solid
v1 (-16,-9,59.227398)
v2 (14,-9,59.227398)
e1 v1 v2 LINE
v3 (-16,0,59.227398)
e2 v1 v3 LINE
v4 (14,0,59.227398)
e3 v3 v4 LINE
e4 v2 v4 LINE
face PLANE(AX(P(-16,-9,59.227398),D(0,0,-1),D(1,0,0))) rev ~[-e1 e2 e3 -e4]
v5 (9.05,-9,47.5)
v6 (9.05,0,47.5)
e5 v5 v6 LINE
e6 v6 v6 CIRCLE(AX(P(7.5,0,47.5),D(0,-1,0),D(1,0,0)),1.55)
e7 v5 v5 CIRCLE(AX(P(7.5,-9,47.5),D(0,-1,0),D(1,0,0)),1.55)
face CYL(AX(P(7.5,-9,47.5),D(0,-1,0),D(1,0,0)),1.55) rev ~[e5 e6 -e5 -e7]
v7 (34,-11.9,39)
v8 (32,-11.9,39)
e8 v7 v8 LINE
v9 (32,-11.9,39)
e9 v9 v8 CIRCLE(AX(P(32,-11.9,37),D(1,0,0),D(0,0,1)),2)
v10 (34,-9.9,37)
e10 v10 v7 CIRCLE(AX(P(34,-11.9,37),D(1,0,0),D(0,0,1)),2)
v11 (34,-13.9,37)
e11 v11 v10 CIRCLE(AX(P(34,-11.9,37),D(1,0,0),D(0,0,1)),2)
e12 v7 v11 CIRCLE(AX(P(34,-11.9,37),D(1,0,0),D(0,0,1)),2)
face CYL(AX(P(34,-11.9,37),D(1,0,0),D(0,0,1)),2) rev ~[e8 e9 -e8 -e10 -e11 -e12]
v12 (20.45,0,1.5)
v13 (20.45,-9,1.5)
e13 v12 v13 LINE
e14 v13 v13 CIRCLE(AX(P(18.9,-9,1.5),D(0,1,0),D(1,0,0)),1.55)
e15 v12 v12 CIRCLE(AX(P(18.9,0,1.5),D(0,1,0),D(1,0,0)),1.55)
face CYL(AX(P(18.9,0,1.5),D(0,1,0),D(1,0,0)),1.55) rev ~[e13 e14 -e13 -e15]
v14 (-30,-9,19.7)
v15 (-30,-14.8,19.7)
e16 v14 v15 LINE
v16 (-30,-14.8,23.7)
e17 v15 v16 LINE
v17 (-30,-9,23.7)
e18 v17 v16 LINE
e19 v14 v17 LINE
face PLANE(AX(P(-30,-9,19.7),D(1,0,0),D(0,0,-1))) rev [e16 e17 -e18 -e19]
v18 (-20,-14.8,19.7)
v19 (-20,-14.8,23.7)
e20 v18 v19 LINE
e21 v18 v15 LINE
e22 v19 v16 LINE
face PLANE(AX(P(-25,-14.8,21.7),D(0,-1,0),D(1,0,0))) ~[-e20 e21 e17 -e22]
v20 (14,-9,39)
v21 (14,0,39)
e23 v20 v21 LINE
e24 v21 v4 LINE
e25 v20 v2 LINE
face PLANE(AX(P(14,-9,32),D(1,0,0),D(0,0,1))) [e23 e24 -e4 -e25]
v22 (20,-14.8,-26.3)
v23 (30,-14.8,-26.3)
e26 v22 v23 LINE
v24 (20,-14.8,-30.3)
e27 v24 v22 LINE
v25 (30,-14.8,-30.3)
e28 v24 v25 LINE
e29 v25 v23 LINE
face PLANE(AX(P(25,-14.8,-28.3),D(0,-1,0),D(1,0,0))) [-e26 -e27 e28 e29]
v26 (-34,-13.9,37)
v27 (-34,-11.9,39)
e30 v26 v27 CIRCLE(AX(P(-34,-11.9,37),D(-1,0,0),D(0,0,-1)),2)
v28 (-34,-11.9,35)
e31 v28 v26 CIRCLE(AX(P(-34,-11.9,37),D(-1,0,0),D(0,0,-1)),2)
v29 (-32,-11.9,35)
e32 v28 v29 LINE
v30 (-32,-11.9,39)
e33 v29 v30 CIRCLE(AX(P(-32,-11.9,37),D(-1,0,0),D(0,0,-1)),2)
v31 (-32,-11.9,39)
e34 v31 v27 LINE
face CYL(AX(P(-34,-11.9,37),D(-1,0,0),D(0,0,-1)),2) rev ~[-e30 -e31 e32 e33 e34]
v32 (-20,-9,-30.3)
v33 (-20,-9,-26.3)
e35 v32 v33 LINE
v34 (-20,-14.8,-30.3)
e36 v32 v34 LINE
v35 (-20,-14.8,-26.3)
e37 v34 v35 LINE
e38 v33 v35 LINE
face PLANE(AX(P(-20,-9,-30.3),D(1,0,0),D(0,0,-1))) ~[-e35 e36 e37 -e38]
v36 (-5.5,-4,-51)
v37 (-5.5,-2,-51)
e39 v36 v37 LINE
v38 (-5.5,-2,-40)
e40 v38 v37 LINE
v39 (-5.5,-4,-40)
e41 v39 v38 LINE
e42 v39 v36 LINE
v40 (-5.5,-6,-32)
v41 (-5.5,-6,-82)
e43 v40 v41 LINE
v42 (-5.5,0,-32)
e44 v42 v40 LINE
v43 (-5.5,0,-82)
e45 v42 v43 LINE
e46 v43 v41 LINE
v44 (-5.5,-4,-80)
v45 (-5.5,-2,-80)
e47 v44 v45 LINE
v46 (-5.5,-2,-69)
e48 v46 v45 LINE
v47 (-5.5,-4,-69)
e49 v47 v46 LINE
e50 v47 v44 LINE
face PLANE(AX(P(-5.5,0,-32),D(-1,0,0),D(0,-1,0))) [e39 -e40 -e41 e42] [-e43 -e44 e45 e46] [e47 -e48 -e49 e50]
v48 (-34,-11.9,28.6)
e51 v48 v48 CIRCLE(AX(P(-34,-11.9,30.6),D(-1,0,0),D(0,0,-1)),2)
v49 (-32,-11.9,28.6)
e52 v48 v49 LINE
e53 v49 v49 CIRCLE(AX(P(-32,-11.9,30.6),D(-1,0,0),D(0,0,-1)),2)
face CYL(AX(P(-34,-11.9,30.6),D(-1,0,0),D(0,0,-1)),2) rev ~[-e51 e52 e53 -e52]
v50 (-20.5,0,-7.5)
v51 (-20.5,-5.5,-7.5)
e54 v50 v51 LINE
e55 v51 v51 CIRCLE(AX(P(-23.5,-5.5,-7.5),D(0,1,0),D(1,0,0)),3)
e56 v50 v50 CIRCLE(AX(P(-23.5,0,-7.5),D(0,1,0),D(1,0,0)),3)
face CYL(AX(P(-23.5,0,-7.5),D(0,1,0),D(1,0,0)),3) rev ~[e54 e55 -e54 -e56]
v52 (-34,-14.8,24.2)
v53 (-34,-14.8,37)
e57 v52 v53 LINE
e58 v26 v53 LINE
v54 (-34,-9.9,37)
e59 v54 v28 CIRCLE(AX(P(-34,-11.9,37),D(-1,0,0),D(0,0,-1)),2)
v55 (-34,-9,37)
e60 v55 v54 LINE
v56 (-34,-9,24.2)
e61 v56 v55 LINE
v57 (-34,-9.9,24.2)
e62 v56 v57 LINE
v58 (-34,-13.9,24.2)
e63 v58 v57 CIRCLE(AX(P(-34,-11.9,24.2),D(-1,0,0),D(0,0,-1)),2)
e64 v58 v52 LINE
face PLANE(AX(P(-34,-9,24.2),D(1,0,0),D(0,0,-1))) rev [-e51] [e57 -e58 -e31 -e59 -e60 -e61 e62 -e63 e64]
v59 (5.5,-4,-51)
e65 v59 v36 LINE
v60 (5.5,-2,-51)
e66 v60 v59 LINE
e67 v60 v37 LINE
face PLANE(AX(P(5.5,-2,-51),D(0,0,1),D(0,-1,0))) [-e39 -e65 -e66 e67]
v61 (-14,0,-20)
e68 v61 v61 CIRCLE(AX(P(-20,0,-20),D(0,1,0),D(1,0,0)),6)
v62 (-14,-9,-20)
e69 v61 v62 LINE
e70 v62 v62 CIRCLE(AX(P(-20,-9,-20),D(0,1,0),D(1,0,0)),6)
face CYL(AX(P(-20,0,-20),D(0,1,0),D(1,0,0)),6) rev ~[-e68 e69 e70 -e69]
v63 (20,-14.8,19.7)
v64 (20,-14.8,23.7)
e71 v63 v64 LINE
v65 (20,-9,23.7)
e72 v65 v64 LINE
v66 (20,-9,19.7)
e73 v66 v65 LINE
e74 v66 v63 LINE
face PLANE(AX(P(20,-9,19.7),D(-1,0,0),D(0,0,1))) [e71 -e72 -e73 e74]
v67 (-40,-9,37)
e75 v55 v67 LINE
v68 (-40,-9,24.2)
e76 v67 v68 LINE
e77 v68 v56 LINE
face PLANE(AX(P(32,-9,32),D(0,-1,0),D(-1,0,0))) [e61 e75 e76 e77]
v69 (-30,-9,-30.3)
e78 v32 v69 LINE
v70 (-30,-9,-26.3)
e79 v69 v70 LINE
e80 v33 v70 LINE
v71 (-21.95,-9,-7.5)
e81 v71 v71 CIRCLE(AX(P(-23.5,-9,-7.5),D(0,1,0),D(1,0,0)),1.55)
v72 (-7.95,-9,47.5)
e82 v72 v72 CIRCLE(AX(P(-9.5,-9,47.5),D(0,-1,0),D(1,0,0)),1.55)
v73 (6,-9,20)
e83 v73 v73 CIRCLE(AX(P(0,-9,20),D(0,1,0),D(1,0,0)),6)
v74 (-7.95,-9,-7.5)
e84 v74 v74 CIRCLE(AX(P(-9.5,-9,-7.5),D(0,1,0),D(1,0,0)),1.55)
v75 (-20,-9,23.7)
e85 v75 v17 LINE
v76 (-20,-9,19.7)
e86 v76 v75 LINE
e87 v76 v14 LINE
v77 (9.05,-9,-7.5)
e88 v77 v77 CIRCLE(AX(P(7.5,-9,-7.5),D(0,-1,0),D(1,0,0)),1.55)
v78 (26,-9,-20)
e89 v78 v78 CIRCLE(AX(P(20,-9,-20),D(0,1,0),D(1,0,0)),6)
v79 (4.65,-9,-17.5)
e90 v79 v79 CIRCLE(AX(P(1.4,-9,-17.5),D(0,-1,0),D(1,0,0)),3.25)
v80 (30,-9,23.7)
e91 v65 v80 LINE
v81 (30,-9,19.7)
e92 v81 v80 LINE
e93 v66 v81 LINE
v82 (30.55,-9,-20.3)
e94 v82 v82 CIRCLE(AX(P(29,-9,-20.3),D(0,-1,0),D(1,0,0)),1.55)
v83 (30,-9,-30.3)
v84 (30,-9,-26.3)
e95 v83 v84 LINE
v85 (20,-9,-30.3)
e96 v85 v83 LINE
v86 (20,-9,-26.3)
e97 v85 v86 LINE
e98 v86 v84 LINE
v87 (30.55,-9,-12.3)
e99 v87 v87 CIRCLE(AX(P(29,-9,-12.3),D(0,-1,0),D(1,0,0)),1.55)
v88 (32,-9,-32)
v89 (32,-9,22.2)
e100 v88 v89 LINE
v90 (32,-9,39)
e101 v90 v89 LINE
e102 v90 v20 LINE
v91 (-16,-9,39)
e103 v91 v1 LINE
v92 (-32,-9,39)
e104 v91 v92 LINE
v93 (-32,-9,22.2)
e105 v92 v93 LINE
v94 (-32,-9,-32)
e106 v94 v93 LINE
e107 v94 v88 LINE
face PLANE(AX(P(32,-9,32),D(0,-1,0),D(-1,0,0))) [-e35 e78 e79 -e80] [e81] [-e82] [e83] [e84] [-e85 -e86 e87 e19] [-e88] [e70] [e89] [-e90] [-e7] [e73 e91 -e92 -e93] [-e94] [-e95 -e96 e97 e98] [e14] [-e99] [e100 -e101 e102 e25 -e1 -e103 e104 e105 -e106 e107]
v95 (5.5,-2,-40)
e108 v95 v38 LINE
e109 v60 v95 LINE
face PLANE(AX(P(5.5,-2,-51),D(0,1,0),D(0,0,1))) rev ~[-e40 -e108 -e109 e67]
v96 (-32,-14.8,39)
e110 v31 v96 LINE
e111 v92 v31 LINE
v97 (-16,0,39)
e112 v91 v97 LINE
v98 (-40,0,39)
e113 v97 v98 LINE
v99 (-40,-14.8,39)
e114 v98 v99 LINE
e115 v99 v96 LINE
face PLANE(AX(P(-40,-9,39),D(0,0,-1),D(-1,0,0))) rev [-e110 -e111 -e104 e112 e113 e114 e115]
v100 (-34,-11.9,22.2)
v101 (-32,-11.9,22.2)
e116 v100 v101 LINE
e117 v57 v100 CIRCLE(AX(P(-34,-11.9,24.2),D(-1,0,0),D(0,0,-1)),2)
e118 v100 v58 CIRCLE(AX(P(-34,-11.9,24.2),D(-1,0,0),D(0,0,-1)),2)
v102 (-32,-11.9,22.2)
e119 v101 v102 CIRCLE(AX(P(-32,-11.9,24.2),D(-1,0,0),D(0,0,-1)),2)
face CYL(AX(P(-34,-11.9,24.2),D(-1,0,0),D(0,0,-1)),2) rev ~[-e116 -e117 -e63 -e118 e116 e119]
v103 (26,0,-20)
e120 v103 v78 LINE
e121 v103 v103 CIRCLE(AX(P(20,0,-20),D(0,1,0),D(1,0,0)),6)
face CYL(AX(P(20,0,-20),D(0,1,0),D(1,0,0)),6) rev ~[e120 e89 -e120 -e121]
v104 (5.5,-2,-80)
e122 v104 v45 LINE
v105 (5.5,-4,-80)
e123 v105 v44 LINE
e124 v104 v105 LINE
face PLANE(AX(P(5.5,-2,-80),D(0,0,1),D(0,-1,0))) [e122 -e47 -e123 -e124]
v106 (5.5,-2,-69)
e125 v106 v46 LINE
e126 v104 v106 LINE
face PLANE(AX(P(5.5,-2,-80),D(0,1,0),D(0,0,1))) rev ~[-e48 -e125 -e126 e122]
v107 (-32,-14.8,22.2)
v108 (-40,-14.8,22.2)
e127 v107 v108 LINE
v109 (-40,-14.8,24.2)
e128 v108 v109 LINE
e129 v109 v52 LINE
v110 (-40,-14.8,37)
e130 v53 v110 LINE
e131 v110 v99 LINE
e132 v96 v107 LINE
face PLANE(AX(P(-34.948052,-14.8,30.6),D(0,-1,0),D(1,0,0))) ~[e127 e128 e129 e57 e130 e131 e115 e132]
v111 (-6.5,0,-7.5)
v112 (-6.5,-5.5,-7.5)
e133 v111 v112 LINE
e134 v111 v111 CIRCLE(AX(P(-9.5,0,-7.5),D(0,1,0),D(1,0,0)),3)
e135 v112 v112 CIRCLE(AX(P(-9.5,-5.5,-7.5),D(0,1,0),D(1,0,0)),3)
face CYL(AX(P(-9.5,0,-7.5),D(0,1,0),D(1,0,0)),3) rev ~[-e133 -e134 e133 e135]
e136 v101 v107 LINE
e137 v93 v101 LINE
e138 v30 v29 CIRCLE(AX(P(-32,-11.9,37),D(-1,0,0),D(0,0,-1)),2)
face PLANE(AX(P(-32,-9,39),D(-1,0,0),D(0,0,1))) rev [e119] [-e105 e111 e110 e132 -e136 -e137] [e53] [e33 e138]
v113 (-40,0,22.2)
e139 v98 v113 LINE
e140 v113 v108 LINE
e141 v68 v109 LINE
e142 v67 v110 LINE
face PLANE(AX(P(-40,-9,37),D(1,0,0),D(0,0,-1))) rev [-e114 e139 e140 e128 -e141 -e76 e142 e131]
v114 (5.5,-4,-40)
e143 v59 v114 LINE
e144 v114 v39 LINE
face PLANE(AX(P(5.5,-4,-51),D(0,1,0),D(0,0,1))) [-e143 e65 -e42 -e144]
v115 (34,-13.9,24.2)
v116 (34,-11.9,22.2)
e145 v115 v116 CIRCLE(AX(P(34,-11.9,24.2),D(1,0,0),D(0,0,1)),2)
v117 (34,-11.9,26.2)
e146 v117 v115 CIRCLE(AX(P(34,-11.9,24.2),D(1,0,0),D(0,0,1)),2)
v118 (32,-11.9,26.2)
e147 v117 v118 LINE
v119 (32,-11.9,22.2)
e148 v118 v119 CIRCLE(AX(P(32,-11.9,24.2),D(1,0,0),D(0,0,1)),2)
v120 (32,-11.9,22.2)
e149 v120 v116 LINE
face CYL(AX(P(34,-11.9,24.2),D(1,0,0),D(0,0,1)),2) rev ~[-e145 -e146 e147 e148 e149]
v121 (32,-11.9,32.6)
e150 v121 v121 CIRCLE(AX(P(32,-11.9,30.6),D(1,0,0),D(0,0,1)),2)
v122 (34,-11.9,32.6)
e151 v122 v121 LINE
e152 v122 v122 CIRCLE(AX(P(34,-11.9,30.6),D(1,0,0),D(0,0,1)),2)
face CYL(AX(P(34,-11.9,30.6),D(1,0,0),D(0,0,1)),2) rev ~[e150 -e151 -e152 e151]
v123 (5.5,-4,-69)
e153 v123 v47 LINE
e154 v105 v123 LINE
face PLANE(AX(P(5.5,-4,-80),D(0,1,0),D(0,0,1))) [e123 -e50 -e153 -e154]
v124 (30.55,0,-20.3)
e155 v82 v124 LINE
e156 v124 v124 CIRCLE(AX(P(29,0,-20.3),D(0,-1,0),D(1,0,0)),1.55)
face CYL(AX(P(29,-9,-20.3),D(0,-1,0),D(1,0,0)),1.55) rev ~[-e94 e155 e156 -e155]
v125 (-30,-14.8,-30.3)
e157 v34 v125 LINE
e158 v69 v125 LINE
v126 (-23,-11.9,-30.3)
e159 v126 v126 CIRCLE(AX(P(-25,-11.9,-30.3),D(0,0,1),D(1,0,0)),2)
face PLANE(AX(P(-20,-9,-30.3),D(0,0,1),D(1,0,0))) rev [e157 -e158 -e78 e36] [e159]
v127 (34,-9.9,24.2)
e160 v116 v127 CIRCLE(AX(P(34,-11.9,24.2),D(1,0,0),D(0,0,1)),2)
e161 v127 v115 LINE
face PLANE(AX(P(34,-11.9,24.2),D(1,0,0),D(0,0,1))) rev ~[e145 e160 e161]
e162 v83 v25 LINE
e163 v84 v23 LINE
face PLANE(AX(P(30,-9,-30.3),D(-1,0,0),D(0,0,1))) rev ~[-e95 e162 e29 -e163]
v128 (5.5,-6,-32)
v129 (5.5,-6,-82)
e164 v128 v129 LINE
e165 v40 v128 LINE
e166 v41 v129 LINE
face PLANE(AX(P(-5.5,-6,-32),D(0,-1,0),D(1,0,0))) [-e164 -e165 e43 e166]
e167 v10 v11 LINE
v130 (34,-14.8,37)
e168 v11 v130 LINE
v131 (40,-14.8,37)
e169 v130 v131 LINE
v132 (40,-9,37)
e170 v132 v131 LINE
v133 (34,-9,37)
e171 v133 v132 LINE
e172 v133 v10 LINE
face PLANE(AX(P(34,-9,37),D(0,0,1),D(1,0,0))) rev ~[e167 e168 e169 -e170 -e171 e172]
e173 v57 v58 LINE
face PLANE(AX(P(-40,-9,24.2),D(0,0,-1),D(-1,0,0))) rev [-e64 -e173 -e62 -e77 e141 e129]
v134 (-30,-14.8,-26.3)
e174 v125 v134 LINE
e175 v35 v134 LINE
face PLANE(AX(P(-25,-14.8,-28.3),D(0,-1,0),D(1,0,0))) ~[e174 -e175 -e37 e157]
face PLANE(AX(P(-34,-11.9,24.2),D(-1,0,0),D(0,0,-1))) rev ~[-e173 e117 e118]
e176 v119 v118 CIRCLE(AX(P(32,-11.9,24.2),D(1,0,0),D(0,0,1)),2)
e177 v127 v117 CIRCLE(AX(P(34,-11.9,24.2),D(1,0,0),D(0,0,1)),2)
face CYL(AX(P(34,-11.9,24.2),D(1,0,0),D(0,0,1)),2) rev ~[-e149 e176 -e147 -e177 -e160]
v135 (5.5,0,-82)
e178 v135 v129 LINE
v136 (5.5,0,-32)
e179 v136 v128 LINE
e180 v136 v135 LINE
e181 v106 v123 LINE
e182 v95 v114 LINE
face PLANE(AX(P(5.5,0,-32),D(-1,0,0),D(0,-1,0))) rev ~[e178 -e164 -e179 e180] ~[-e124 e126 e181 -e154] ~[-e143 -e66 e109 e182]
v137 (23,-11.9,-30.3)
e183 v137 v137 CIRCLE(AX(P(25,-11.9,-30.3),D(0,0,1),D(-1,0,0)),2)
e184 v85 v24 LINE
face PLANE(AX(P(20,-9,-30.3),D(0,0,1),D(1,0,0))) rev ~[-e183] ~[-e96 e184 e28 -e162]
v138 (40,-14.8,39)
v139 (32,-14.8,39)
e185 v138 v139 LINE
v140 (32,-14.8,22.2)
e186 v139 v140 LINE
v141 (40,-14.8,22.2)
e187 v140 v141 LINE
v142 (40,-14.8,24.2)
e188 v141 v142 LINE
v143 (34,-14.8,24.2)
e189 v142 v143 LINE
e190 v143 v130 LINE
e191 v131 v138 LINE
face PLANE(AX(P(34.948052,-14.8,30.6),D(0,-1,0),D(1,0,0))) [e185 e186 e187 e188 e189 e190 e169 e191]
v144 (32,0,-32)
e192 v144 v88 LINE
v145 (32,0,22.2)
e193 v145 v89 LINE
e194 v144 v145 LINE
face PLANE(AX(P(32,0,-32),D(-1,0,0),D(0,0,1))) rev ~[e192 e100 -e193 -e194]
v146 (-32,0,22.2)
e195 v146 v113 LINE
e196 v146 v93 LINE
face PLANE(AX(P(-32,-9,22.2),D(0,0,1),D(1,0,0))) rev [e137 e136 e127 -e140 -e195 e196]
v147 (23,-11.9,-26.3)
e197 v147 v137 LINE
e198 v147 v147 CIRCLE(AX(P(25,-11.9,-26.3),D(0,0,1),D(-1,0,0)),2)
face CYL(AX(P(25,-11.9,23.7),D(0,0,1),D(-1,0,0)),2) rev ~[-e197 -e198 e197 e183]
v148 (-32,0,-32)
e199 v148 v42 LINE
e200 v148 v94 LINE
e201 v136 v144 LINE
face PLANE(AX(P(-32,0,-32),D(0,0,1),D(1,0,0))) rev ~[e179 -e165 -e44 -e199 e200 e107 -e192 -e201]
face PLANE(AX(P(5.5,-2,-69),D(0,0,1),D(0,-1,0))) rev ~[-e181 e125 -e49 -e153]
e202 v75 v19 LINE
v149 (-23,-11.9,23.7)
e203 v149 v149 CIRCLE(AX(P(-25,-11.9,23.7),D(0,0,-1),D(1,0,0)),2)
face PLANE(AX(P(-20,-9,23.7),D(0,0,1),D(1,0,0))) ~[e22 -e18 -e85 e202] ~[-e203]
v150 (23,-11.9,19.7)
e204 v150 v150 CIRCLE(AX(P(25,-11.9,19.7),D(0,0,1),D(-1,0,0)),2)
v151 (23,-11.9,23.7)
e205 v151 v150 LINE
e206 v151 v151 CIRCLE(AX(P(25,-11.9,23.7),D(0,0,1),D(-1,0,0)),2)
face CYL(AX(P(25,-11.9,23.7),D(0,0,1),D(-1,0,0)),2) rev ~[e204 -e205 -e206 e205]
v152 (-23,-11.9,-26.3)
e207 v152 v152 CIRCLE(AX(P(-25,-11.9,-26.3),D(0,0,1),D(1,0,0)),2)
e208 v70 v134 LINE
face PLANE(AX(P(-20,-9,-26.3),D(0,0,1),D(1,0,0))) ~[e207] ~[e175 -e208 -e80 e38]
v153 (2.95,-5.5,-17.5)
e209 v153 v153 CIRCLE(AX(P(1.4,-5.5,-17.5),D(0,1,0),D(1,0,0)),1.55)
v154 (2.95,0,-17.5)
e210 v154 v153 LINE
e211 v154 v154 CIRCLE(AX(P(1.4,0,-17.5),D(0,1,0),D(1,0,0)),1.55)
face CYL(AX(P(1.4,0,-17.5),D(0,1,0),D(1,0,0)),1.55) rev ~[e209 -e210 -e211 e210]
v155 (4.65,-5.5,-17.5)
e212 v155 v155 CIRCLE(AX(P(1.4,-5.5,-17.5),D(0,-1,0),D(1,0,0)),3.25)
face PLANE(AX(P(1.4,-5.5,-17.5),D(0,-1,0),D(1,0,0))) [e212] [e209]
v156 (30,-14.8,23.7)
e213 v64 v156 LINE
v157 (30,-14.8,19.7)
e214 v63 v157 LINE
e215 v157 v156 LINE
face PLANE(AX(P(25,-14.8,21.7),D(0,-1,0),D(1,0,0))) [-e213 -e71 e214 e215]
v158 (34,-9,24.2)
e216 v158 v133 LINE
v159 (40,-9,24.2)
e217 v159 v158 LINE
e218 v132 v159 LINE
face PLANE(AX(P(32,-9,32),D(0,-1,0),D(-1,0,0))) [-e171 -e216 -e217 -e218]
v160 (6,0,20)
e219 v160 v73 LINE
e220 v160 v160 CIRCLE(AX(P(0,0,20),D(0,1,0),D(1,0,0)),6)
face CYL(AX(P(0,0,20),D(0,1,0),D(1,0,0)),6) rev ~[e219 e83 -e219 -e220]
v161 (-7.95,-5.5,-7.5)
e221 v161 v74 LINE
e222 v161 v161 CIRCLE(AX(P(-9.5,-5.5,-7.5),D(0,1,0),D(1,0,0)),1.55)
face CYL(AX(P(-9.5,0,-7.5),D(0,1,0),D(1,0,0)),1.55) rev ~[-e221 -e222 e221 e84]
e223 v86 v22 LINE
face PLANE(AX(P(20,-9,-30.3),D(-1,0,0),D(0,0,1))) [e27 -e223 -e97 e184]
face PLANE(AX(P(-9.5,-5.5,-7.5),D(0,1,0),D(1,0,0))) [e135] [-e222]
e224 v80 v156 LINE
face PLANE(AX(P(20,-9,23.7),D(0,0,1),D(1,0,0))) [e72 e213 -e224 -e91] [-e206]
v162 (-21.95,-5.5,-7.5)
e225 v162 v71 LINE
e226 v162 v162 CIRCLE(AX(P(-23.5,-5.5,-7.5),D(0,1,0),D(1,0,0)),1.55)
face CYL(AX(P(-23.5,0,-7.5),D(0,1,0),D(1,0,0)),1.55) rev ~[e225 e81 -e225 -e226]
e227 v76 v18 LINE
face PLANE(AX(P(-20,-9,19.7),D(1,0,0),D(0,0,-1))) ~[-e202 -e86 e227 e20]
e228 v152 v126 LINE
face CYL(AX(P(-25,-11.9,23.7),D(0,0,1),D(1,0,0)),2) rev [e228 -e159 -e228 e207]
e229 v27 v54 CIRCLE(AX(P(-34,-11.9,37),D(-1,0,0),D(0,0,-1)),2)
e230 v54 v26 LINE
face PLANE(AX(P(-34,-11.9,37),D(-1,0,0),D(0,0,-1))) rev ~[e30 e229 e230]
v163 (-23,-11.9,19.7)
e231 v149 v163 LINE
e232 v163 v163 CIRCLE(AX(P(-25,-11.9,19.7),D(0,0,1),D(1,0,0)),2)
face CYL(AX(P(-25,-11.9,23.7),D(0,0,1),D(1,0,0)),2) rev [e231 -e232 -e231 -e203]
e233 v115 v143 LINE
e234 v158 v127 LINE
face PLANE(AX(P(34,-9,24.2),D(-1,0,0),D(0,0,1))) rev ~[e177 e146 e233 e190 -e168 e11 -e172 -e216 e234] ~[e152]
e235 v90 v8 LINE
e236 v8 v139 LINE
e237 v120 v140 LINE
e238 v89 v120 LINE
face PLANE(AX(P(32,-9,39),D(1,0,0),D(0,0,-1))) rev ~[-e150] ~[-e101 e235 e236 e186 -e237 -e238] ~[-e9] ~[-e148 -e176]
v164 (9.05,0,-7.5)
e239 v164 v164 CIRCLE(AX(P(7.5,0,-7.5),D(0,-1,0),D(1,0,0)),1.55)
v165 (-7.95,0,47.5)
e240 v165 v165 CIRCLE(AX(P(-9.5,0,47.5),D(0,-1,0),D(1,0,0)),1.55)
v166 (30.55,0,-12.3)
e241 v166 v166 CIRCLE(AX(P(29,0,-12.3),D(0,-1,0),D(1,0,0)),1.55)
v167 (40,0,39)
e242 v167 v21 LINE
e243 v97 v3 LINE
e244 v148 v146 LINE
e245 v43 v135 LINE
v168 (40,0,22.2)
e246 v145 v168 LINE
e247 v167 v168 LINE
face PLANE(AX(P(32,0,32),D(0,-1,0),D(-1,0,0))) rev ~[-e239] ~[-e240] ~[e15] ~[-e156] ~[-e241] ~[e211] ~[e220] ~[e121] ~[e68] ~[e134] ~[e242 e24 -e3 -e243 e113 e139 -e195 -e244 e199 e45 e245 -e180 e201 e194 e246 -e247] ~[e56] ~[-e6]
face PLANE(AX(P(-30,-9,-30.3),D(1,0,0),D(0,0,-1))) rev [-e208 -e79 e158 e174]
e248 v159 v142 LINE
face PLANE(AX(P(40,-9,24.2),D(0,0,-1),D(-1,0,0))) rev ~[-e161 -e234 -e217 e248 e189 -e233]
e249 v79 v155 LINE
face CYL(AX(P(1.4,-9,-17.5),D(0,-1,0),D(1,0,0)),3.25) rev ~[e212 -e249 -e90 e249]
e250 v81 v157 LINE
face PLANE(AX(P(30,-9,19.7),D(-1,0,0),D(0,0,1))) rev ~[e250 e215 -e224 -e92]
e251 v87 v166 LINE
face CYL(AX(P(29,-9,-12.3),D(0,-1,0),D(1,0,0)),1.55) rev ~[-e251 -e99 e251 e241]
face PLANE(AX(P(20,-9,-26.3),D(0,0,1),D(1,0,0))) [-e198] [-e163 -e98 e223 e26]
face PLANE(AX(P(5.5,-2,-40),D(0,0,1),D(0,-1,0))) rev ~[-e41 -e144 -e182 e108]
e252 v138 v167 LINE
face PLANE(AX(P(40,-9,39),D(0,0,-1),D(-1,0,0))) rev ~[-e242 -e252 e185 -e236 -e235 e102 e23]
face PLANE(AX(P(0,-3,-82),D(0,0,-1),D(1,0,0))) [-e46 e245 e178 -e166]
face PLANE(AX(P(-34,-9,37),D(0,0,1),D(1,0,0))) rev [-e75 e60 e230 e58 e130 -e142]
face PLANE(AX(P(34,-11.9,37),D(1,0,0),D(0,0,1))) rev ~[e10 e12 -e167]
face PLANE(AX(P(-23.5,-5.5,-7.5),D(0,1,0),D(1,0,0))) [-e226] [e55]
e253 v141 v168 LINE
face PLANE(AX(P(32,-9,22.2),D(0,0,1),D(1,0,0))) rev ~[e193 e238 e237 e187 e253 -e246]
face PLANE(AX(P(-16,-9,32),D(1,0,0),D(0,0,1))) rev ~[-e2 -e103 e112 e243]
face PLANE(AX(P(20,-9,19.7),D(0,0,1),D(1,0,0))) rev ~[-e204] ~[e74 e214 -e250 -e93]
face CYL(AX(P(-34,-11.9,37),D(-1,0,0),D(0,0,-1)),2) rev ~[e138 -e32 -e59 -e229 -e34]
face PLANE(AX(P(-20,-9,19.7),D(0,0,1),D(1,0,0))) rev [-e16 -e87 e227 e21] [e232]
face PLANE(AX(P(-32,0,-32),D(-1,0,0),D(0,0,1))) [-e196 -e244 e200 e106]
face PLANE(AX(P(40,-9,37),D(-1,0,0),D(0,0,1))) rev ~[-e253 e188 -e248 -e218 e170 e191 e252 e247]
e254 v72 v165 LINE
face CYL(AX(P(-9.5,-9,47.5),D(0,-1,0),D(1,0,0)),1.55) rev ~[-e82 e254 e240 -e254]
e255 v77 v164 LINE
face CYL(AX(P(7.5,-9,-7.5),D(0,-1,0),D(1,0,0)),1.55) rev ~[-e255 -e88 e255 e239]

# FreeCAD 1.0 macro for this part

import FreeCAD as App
import Part
import Sketcher
Q = App.Units.Quantity


def add_polygon(sketch, points):
    """Adds a closed chain of lines whose ends are joined by coincident constraints."""
    first, n = sketch.GeometryCount, len(points)
    for a, b in zip(points, points[1:] + points[:1]):
        sketch.addGeometry(Part.LineSegment(App.Vector(*a, 0), App.Vector(*b, 0)), False)
    for i in range(n):
        sketch.addConstraint(Sketcher.Constraint("Coincident", first + i, 2, first + (i + 1) % n, 1))

doc = App.newDocument("Part")
params = doc.addObject("Spreadsheet::Sheet", "Params")
for row, (alias, value) in enumerate([
    ("sketch1_width", "64 mm"),
    ("pad1_length", "9 mm"),
    ("sketch2_diameter", "3.1 mm"),
    ("pocket1_length", "9 mm"),
    ("sketch3_diameter", "3.1 mm"),
    ("pocket2_length", "9 mm"),
    ("sketch4_diameter", "6 mm"),
    ("pocket3_length", "5.5 mm"),
    ("sketch5_diameter", "12 mm"),
    ("pocket4_length", "9 mm"),
    ("sketch6_diameter", "3.1 mm"),
    ("pocket5_length", "9 mm"),
    ("sketch7_width", "30 mm"),
    ("pad2_length", "9 mm"),
    ("sketch8_diameter", "3.1 mm"),
    ("pocket6_length", "9 mm"),
    ("sketch9_width", "9 mm"),
    ("sketch9_height", "16.8 mm"),
    ("pad3_length", "8 mm"),
    ("sketch10_width", "16 mm"),
    ("sketch10_height", "9 mm"),
    ("pad4_length", "7 mm"),
    ("sketch11_width", "18 mm"),
    ("sketch11_height", "9 mm"),
    ("pad5_length", "7 mm"),
    ("sketch12_width", "8 mm"),
    ("sketch12_width2", "6 mm"),
    ("sketch12_height", "2 mm"),
    ("sketch12_height2", "16.8 mm"),
    ("pad6_length", "5.8 mm"),
    ("sketch13_diameter", "4 mm"),
    ("pocket7_length", "5 mm"),
    ("linearpattern_pitch", "6.4 mm"),
    ("sketch14_diameter", "4 mm"),
    ("pocket8_length", "5 mm"),
    ("linearpattern2_pitch", "6.4 mm"),
    ("sketch15_width", "10 mm"),
    ("sketch15_height", "4 mm"),
    ("pad7_length", "5.8 mm"),
    ("sketch16_diameter", "4 mm"),
    ("pocket9_length", "100 mm"),
    ("sketch17_width", "11 mm"),
    ("sketch17_height", "6 mm"),
    ("pad8_length", "50 mm"),
    ("sketch18_width", "2 mm"),
    ("sketch18_height", "11 mm"),
    ("pocket10_length", "12 mm"),
    ("sketch19_diameter", "3.1 mm"),
    ("pocket11_length", "10 mm"),
    ("sketch20_diameter", "6.5 mm"),
    ("pocket12_length", "3.5 mm"),
], start=1):
    params.set(f"A{row}", alias)
    params.set(f"B{row}", "=" + value)
    params.setAlias(f"B{row}", alias)

body = doc.addObject("PartDesign::Body", "Body")

sketch1 = doc.addObject("Sketcher::SketchObject", "Sketch")
body.addObject(sketch1)
sketch1.AttachmentSupport = (doc.XZ_Plane, [""])
sketch1.MapMode = "FlatFace"
add_polygon(sketch1, [(-32, 32), (-32, -32), (32, -32), (32, 32)])
sketch1.addConstraint(Sketcher.Constraint("Vertical", 0))
sketch1.addConstraint(Sketcher.Constraint("Horizontal", 1))
sketch1.addConstraint(Sketcher.Constraint("Vertical", 2))
sketch1.addConstraint(Sketcher.Constraint("Horizontal", 3))
sketch1.addConstraint(Sketcher.Constraint("Symmetric", 0, 2, 2, 2, -1, 1))
sketch1.addConstraint(Sketcher.Constraint("Equal", 3, 0))
sketch1.addConstraint(Sketcher.Constraint("DistanceX", 1, 1, 1, 2, Q("64 mm")))
sketch1.setExpression("Constraints[10]", "Params.sketch1_width")
pad1 = doc.addObject("PartDesign::Pad", "Pad")
body.addObject(pad1)
pad1.Profile = sketch1
pad1.setExpression("Length", "Params.pad1_length")

sketch2 = doc.addObject("Sketcher::SketchObject", "Sketch001")
body.addObject(sketch2)
sketch2.AttachmentSupport = (doc.XZ_Plane, [""])
sketch2.MapMode = "FlatFace"
sketch2.addGeometry(Part.Circle(App.Vector(-9.5, -7.5, 0), App.Vector(0, 0, 1), 1.55), False)
sketch2.addGeometry(Part.Circle(App.Vector(-23.5, -7.5, 0), App.Vector(0, 0, 1), 1.55), False)
sketch2.addConstraint(Sketcher.Constraint("Equal", 0, 1))
sketch2.addConstraint(Sketcher.Constraint("Horizontal", 0, 3, 1, 3))
sketch2.addConstraint(Sketcher.Constraint("Diameter", 0, Q("3.1 mm")))
sketch2.addConstraint(Sketcher.Constraint("DistanceX", 1, 3, 0, 3, Q("14 mm")))
sketch2.addConstraint(Sketcher.Constraint("DistanceX", 0, 3, -1, 1, Q("9.5 mm")))
sketch2.addConstraint(Sketcher.Constraint("DistanceY", 0, 3, -1, 1, Q("7.5 mm")))
sketch2.setExpression("Constraints[2]", "Params.sketch2_diameter")
pocket1 = doc.addObject("PartDesign::Pocket", "Pocket")
body.addObject(pocket1)
pocket1.Profile = sketch2
pocket1.setExpression("Length", "Params.pocket1_length")
pocket1.Reversed = True

sketch3 = doc.addObject("Sketcher::SketchObject", "Sketch002")
body.addObject(sketch3)
sketch3.AttachmentSupport = (doc.XZ_Plane, [""])
sketch3.MapMode = "FlatFace"
sketch3.addGeometry(Part.Circle(App.Vector(1.4, -17.5, 0), App.Vector(0, 0, 1), 1.55), False)
sketch3.addGeometry(Part.Circle(App.Vector(18.9, 1.5, 0), App.Vector(0, 0, 1), 1.55), False)
sketch3.addConstraint(Sketcher.Constraint("Equal", 0, 1))
sketch3.addConstraint(Sketcher.Constraint("Diameter", 0, Q("3.1 mm")))
sketch3.addConstraint(Sketcher.Constraint("DistanceY", 0, 3, 1, 3, Q("19 mm")))
sketch3.addConstraint(Sketcher.Constraint("DistanceX", -1, 1, 0, 3, Q("1.4 mm")))
sketch3.addConstraint(Sketcher.Constraint("DistanceY", 0, 3, -1, 1, Q("17.5 mm")))
sketch3.addConstraint(Sketcher.Constraint("DistanceX", -1, 1, 1, 3, Q("18.9 mm")))
sketch3.setExpression("Constraints[1]", "Params.sketch3_diameter")
pocket2 = doc.addObject("PartDesign::Pocket", "Pocket001")
body.addObject(pocket2)
pocket2.Profile = sketch3
pocket2.setExpression("Length", "Params.pocket2_length")
pocket2.Reversed = True

sketch4 = doc.addObject("Sketcher::SketchObject", "Sketch003")
body.addObject(sketch4)
sketch4.AttachmentSupport = (doc.XZ_Plane, [""])
sketch4.MapMode = "FlatFace"
sketch4.addGeometry(Part.Circle(App.Vector(-23.5, -7.5, 0), App.Vector(0, 0, 1), 3), False)
sketch4.addGeometry(Part.Circle(App.Vector(-9.5, -7.5, 0), App.Vector(0, 0, 1), 3), False)
sketch4.addConstraint(Sketcher.Constraint("Equal", 0, 1))
sketch4.addConstraint(Sketcher.Constraint("Horizontal", 0, 3, 1, 3))
sketch4.addConstraint(Sketcher.Constraint("Diameter", 0, Q("6 mm")))
sketch4.addConstraint(Sketcher.Constraint("DistanceX", 0, 3, 1, 3, Q("14 mm")))
sketch4.addConstraint(Sketcher.Constraint("DistanceX", 0, 3, -1, 1, Q("23.5 mm")))
sketch4.addConstraint(Sketcher.Constraint("DistanceY", 0, 3, -1, 1, Q("7.5 mm")))
sketch4.setExpression("Constraints[2]", "Params.sketch4_diameter")
pocket3 = doc.addObject("PartDesign::Pocket", "Pocket002")
body.addObject(pocket3)
pocket3.Profile = sketch4
pocket3.setExpression("Length", "Params.pocket3_length")
pocket3.Reversed = True

sketch5 = doc.addObject("Sketcher::SketchObject", "Sketch004")
body.addObject(sketch5)
sketch5.AttachmentSupport = (doc.XZ_Plane, [""])
sketch5.MapMode = "FlatFace"
sketch5.addGeometry(Part.Circle(App.Vector(0, 20, 0), App.Vector(0, 0, 1), 6), False)
sketch5.addGeometry(Part.Circle(App.Vector(20, -20, 0), App.Vector(0, 0, 1), 6), False)
sketch5.addGeometry(Part.Circle(App.Vector(-20, -20, 0), App.Vector(0, 0, 1), 6), False)
sketch5.addConstraint(Sketcher.Constraint("Equal", 0, 1))
sketch5.addConstraint(Sketcher.Constraint("Equal", 1, 2))
sketch5.addConstraint(Sketcher.Constraint("Symmetric", 1, 3, 2, 3, -2))
sketch5.addConstraint(Sketcher.Constraint("PointOnObject", 0, 3, -2))
sketch5.addConstraint(Sketcher.Constraint("Diameter", 0, Q("12 mm")))
sketch5.addConstraint(Sketcher.Constraint("DistanceY", -1, 1, 0, 3, Q("20 mm")))
sketch5.addConstraint(Sketcher.Constraint("DistanceX", -1, 1, 1, 3, Q("20 mm")))
sketch5.addConstraint(Sketcher.Constraint("DistanceY", 1, 3, -1, 1, Q("20 mm")))
sketch5.setExpression("Constraints[4]", "Params.sketch5_diameter")
pocket4 = doc.addObject("PartDesign::Pocket", "Pocket003")
body.addObject(pocket4)
pocket4.Profile = sketch5
pocket4.setExpression("Length", "Params.pocket4_length")
pocket4.Reversed = True

sketch6 = doc.addObject("Sketcher::SketchObject", "Sketch005")
body.addObject(sketch6)
sketch6.AttachmentSupport = (doc.XZ_Plane, [""])
sketch6.MapMode = "FlatFace"
sketch6.AttachmentOffset = App.Placement(App.Vector(0, 0, 9), App.Rotation())
sketch6.addGeometry(Part.Circle(App.Vector(7.5, -7.5, 0), App.Vector(0, 0, 1), 1.55), False)
sketch6.addConstraint(Sketcher.Constraint("Diameter", 0, Q("3.1 mm")))
sketch6.addConstraint(Sketcher.Constraint("DistanceX", -1, 1, 0, 3, Q("7.5 mm")))
sketch6.addConstraint(Sketcher.Constraint("DistanceY", 0, 3, -1, 1, Q("7.5 mm")))
sketch6.setExpression("Constraints[0]", "Params.sketch6_diameter")
pocket5 = doc.addObject("PartDesign::Pocket", "Pocket004")
body.addObject(pocket5)
pocket5.Profile = sketch6
pocket5.setExpression("Length", "Params.pocket5_length")

sketch7 = doc.addObject("Sketcher::SketchObject", "Sketch006")
body.addObject(sketch7)
sketch7.AttachmentSupport = (doc.XZ_Plane, [""])
sketch7.MapMode = "FlatFace"
sketch7.AttachmentOffset = App.Placement(App.Vector(0, 0, 9), App.Rotation())
add_polygon(sketch7, [(-16, 59.227398), (-16, 32), (14, 32), (14, 59.227398)])
sketch7.addConstraint(Sketcher.Constraint("Vertical", 0))
sketch7.addConstraint(Sketcher.Constraint("Horizontal", 1))
sketch7.addConstraint(Sketcher.Constraint("Vertical", 2))
sketch7.addConstraint(Sketcher.Constraint("Horizontal", 3))
sketch7.addConstraint(Sketcher.Constraint("DistanceX", 1, 1, 1, 2, Q("30 mm")))
sketch7.addConstraint(Sketcher.Constraint("DistanceX", 0, 2, -1, 1, Q("16 mm")))
sketch7.addConstraint(Sketcher.Constraint("DistanceY", -1, 1, 0, 2, Q("32 mm")))
sketch7.addConstraint(Sketcher.Constraint("DistanceY", 0, 2, 0, 1, Q("27.227398 mm")))
sketch7.setExpression("Constraints[8]", "Params.sketch7_width")
pad2 = doc.addObject("PartDesign::Pad", "Pad001")
body.addObject(pad2)
pad2.Profile = sketch7
pad2.setExpression("Length", "Params.pad2_length")
pad2.Reversed = True

sketch8 = doc.addObject("Sketcher::SketchObject", "Sketch007")
body.addObject(sketch8)
sketch8.AttachmentSupport = (doc.XZ_Plane, [""])
sketch8.MapMode = "FlatFace"
sketch8.AttachmentOffset = App.Placement(App.Vector(0, 0, 9), App.Rotation())
sketch8.addGeometry(Part.Circle(App.Vector(-9.5, 47.5, 0), App.Vector(0, 0, 1), 1.55), False)
sketch8.addGeometry(Part.Circle(App.Vector(7.5, 47.5, 0), App.Vector(0, 0, 1), 1.55), False)
sketch8.addConstraint(Sketcher.Constraint("Equal", 0, 1))
sketch8.addConstraint(Sketcher.Constraint("Horizontal", 0, 3, 1, 3))
sketch8.addConstraint(Sketcher.Constraint("Diameter", 0, Q("3.1 mm")))
sketch8.addConstraint(Sketcher.Constraint("DistanceX", 0, 3, 1, 3, Q("17 mm")))
sketch8.addConstraint(Sketcher.Constraint("DistanceX", 0, 3, -1, 1, Q("9.5 mm")))
sketch8.addConstraint(Sketcher.Constraint("DistanceY", -1, 1, 0, 3, Q("47.5 mm")))
sketch8.setExpression("Constraints[2]", "Params.sketch8_diameter")
pocket6 = doc.addObject("PartDesign::Pocket", "Pocket005")
body.addObject(pocket6)
pocket6.Profile = sketch8
pocket6.setExpression("Length", "Params.pocket6_length")

sketch9 = doc.addObject("Sketcher::SketchObject", "Sketch008")
body.addObject(sketch9)
sketch9.AttachmentSupport = (doc.YZ_Plane, [""])
sketch9.MapMode = "FlatFace"
sketch9.AttachmentOffset = App.Placement(App.Vector(0, 0, -32), App.Rotation())
add_polygon(sketch9, [(-9, 39), (0, 39), (0, 22.2), (-9, 22.2)])
sketch9.addConstraint(Sketcher.Constraint("Horizontal", 0))
sketch9.addConstraint(Sketcher.Constraint("Vertical", 1))
sketch9.addConstraint(Sketcher.Constraint("Horizontal", 2))
sketch9.addConstraint(Sketcher.Constraint("Vertical", 3))
sketch9.addConstraint(Sketcher.Constraint("PointOnObject", 0, 2, -2))
sketch9.addConstraint(Sketcher.Constraint("DistanceX", 0, 1, 0, 2, Q("9 mm")))
sketch9.addConstraint(Sketcher.Constraint("DistanceY", 1, 2, 1, 1, Q("16.8 mm")))
sketch9.addConstraint(Sketcher.Constraint("DistanceY", -1, 1, 0, 2, Q("39 mm")))
sketch9.setExpression("Constraints[9]", "Params.sketch9_width")
sketch9.setExpression("Constraints[10]", "Params.sketch9_height")
pad3 = doc.addObject("PartDesign::Pad", "Pad002")
body.addObject(pad3)
pad3.Profile = sketch9
pad3.setExpression("Length", "Params.pad3_length")
pad3.Reversed = True

sketch10 = doc.addObject("Sketcher::SketchObject", "Sketch009")
body.addObject(sketch10)
sketch10.AttachmentSupport = (doc.XY_Plane, [""])
sketch10.MapMode = "FlatFace"
sketch10.AttachmentOffset = App.Placement(App.Vector(0, 0, 32), App.Rotation())
add_polygon(sketch10, [(-32, -9), (-16, -9), (-16, 0), (-32, 0)])
sketch10.addConstraint(Sketcher.Constraint("Horizontal", 0))
sketch10.addConstraint(Sketcher.Constraint("Vertical", 1))
sketch10.addConstraint(Sketcher.Constraint("Horizontal", 2))
sketch10.addConstraint(Sketcher.Constraint("Vertical", 3))
sketch10.addConstraint(Sketcher.Constraint("PointOnObject", 1, 2, -1))
sketch10.addConstraint(Sketcher.Constraint("DistanceX", 0, 1, 0, 2, Q("16 mm")))
sketch10.addConstraint(Sketcher.Constraint("DistanceY", 1, 1, 1, 2, Q("9 mm")))
sketch10.addConstraint(Sketcher.Constraint("DistanceX", 0, 2, -1, 1, Q("16 mm")))
sketch10.setExpression("Constraints[9]", "Params.sketch10_width")
sketch10.setExpression("Constraints[10]", "Params.sketch10_height")
pad4 = doc.addObject("PartDesign::Pad", "Pad003")
body.addObject(pad4)
pad4.Profile = sketch10
pad4.setExpression("Length", "Params.pad4_length")
doc.recompute()

mirrored = doc.addObject("PartDesign::Mirrored", "Mirrored")
body.addObject(mirrored)
mirrored.Originals = [pad3]
mirrored.MirrorPlane = (doc.YZ_Plane, [""])
body.Tip = mirrored

sketch11 = doc.addObject("Sketcher::SketchObject", "Sketch010")
body.addObject(sketch11)
sketch11.AttachmentSupport = (doc.XY_Plane, [""])
sketch11.MapMode = "FlatFace"
sketch11.AttachmentOffset = App.Placement(App.Vector(0, 0, 32), App.Rotation())
add_polygon(sketch11, [(14, -9), (32, -9), (32, 0), (14, 0)])
sketch11.addConstraint(Sketcher.Constraint("Horizontal", 0))
sketch11.addConstraint(Sketcher.Constraint("Vertical", 1))
sketch11.addConstraint(Sketcher.Constraint("Horizontal", 2))
sketch11.addConstraint(Sketcher.Constraint("Vertical", 3))
sketch11.addConstraint(Sketcher.Constraint("PointOnObject", 1, 2, -1))
sketch11.addConstraint(Sketcher.Constraint("DistanceX", 0, 1, 0, 2, Q("18 mm")))
sketch11.addConstraint(Sketcher.Constraint("DistanceY", 1, 1, 1, 2, Q("9 mm")))
sketch11.addConstraint(Sketcher.Constraint("DistanceX", -1, 1, 0, 2, Q("32 mm")))
sketch11.setExpression("Constraints[9]", "Params.sketch11_width")
sketch11.setExpression("Constraints[10]", "Params.sketch11_height")
pad5 = doc.addObject("PartDesign::Pad", "Pad004")
body.addObject(pad5)
pad5.Profile = sketch11
pad5.setExpression("Length", "Params.pad5_length")

sketch12 = doc.addObject("Sketcher::SketchObject", "Sketch011")
body.addObject(sketch12)
sketch12.AttachmentSupport = (doc.XZ_Plane, [""])
sketch12.MapMode = "FlatFace"
sketch12.AttachmentOffset = App.Placement(App.Vector(0, 0, 9), App.Rotation())
add_polygon(sketch12, [(40, 39), (32, 39), (32, 22.2), (40, 22.2), (40, 24.2), (34, 24.2), (34, 37), (40, 37)])
sketch12.addConstraint(Sketcher.Constraint("Horizontal", 0))
sketch12.addConstraint(Sketcher.Constraint("Vertical", 1))
sketch12.addConstraint(Sketcher.Constraint("Horizontal", 2))
sketch12.addConstraint(Sketcher.Constraint("Vertical", 3))
sketch12.addConstraint(Sketcher.Constraint("Horizontal", 4))
sketch12.addConstraint(Sketcher.Constraint("Vertical", 5))
sketch12.addConstraint(Sketcher.Constraint("Horizontal", 6))
sketch12.addConstraint(Sketcher.Constraint("Vertical", 7))
sketch12.addConstraint(Sketcher.Constraint("Vertical", 3, 2, 6, 2))
sketch12.addConstraint(Sketcher.Constraint("Equal", 3, 7))
sketch12.addConstraint(Sketcher.Constraint("DistanceX", 0, 2, 0, 1, Q("8 mm")))
sketch12.addConstraint(Sketcher.Constraint("DistanceX", 4, 2, 4, 1, Q("6 mm")))
sketch12.addConstraint(Sketcher.Constraint("DistanceY", 3, 1, 3, 2, Q("2 mm")))
sketch12.addConstraint(Sketcher.Constraint("DistanceY", 1, 2, 1, 1, Q("16.8 mm")))
sketch12.addConstraint(Sketcher.Constraint("DistanceX", -1, 1, 0, 2, Q("32 mm")))
sketch12.addConstraint(Sketcher.Constraint("DistanceY", -1, 1, 0, 2, Q("39 mm")))
sketch12.setExpression("Constraints[18]", "Params.sketch12_width")
sketch12.setExpression("Constraints[19]", "Params.sketch12_width2")
sketch12.setExpression("Constraints[20]", "Params.sketch12_height")
sketch12.setExpression("Constraints[21]", "Params.sketch12_height2")
pad6 = doc.addObject("PartDesign::Pad", "Pad005")
body.addObject(pad6)
pad6.Profile = sketch12
pad6.setExpression("Length", "Params.pad6_length")
doc.recompute()

mirrored2 = doc.addObject("PartDesign::Mirrored", "Mirrored001")
body.addObject(mirrored2)
mirrored2.Originals = [pad6]
mirrored2.MirrorPlane = (doc.YZ_Plane, [""])
body.Tip = mirrored2

sketch13 = doc.addObject("Sketcher::SketchObject", "Sketch012")
body.addObject(sketch13)
sketch13.AttachmentSupport = (doc.YZ_Plane, [""])
sketch13.MapMode = "FlatFace"
sketch13.AttachmentOffset = App.Placement(App.Vector(0, 0, -34), App.Rotation())
sketch13.addGeometry(Part.Circle(App.Vector(-11.9, 24.2, 0), App.Vector(0, 0, 1), 2), False)
sketch13.addConstraint(Sketcher.Constraint("Diameter", 0, Q("4 mm")))
sketch13.addConstraint(Sketcher.Constraint("DistanceX", 0, 3, -1, 1, Q("11.9 mm")))
sketch13.addConstraint(Sketcher.Constraint("DistanceY", -1, 1, 0, 3, Q("24.2 mm")))
sketch13.setExpression("Constraints[0]", "Params.sketch13_diameter")
pocket7 = doc.addObject("PartDesign::Pocket", "Pocket006")
body.addObject(pocket7)
pocket7.Profile = sketch13
pocket7.setExpression("Length", "Params.pocket7_length")
pocket7.Reversed = True
doc.recompute()

linearpattern = doc.addObject("PartDesign::LinearPattern", "LinearPattern")
body.addObject(linearpattern)
linearpattern.Originals = [pocket7]
linearpattern.Direction = (doc.Z_Axis, [""])
linearpattern.Mode = "offset"
linearpattern.setExpression("Offset", "Params.linearpattern_pitch")
linearpattern.Occurrences = 3
body.Tip = linearpattern

sketch14 = doc.addObject("Sketcher::SketchObject", "Sketch013")
body.addObject(sketch14)
sketch14.AttachmentSupport = (doc.YZ_Plane, [""])
sketch14.MapMode = "FlatFace"
sketch14.AttachmentOffset = App.Placement(App.Vector(0, 0, 34), App.Rotation())
sketch14.addGeometry(Part.Circle(App.Vector(-11.9, 37, 0), App.Vector(0, 0, 1), 2), False)
sketch14.addConstraint(Sketcher.Constraint("Diameter", 0, Q("4 mm")))
sketch14.addConstraint(Sketcher.Constraint("DistanceY", -1, 1, 0, 3, Q("37 mm")))
sketch14.addConstraint(Sketcher.Constraint("DistanceX", 0, 3, -1, 1, Q("11.9 mm")))
sketch14.setExpression("Constraints[0]", "Params.sketch14_diameter")
pocket8 = doc.addObject("PartDesign::Pocket", "Pocket007")
body.addObject(pocket8)
pocket8.Profile = sketch14
pocket8.setExpression("Length", "Params.pocket8_length")
doc.recompute()

linearpattern2 = doc.addObject("PartDesign::LinearPattern", "LinearPattern001")
body.addObject(linearpattern2)
linearpattern2.Originals = [pocket8]
linearpattern2.Direction = (doc.Z_Axis, [""])
linearpattern2.Mode = "offset"
linearpattern2.setExpression("Offset", "Params.linearpattern2_pitch")
linearpattern2.Occurrences = 3
linearpattern2.Reversed = True
body.Tip = linearpattern2

sketch15 = doc.addObject("Sketcher::SketchObject", "Sketch014")
body.addObject(sketch15)
sketch15.AttachmentSupport = (doc.XZ_Plane, [""])
sketch15.MapMode = "FlatFace"
sketch15.AttachmentOffset = App.Placement(App.Vector(0, 0, 9), App.Rotation())
add_polygon(sketch15, [(20, 23.7), (20, 19.7), (30, 19.7), (30, 23.7)])
add_polygon(sketch15, [(20, -26.3), (20, -30.3), (30, -30.3), (30, -26.3)])
sketch15.addConstraint(Sketcher.Constraint("Vertical", 0))
sketch15.addConstraint(Sketcher.Constraint("Horizontal", 1))
sketch15.addConstraint(Sketcher.Constraint("Vertical", 2))
sketch15.addConstraint(Sketcher.Constraint("Horizontal", 3))
sketch15.addConstraint(Sketcher.Constraint("Vertical", 4))
sketch15.addConstraint(Sketcher.Constraint("Horizontal", 5))
sketch15.addConstraint(Sketcher.Constraint("Vertical", 6))
sketch15.addConstraint(Sketcher.Constraint("Horizontal", 7))
sketch15.addConstraint(Sketcher.Constraint("Vertical", 3, 2, 4, 2))
sketch15.addConstraint(Sketcher.Constraint("Vertical", 2, 2, 5, 2))
sketch15.addConstraint(Sketcher.Constraint("Equal", 2, 4))
sketch15.addConstraint(Sketcher.Constraint("DistanceX", 1, 1, 1, 2, Q("10 mm")))
sketch15.addConstraint(Sketcher.Constraint("DistanceY", 0, 2, 0, 1, Q("4 mm")))
sketch15.addConstraint(Sketcher.Constraint("DistanceX", -1, 1, 0, 2, Q("20 mm")))
sketch15.addConstraint(Sketcher.Constraint("DistanceY", 4, 2, 0, 2, Q("50 mm")))
sketch15.addConstraint(Sketcher.Constraint("DistanceY", -1, 1, 0, 2, Q("19.7 mm")))
sketch15.setExpression("Constraints[19]", "Params.sketch15_width")
sketch15.setExpression("Constraints[20]", "Params.sketch15_height")
pad7 = doc.addObject("PartDesign::Pad", "Pad006")
body.addObject(pad7)
pad7.Profile = sketch15
pad7.setExpression("Length", "Params.pad7_length")
doc.recompute()

mirrored3 = doc.addObject("PartDesign::Mirrored", "Mirrored002")
body.addObject(mirrored3)
mirrored3.Originals = [pad7]
mirrored3.MirrorPlane = (doc.YZ_Plane, [""])
body.Tip = mirrored3

sketch16 = doc.addObject("Sketcher::SketchObject", "Sketch015")
body.addObject(sketch16)
sketch16.AttachmentSupport = (doc.XY_Plane, [""])
sketch16.MapMode = "FlatFace"
sketch16.AttachmentOffset = App.Placement(App.Vector(0, 0, 23.7), App.Rotation())
sketch16.addGeometry(Part.Circle(App.Vector(25, -11.9, 0), App.Vector(0, 0, 1), 2), False)
sketch16.addConstraint(Sketcher.Constraint("Diameter", 0, Q("4 mm")))
sketch16.addConstraint(Sketcher.Constraint("DistanceX", -1, 1, 0, 3, Q("25 mm")))
sketch16.addConstraint(Sketcher.Constraint("DistanceY", 0, 3, -1, 1, Q("11.9 mm")))
sketch16.setExpression("Constraints[0]", "Params.sketch16_diameter")
pocket9 = doc.addObject("PartDesign::Pocket", "Pocket008")
body.addObject(pocket9)
pocket9.Profile = sketch16
pocket9.setExpression("Length", "Params.pocket9_length")
doc.recompute()

mirrored4 = doc.addObject("PartDesign::Mirrored", "Mirrored003")
body.addObject(mirrored4)
mirrored4.Originals = [pocket9]
mirrored4.MirrorPlane = (doc.YZ_Plane, [""])
body.Tip = mirrored4

sketch17 = doc.addObject("Sketcher::SketchObject", "Sketch016")
body.addObject(sketch17)
sketch17.AttachmentSupport = (doc.XY_Plane, [""])
sketch17.MapMode = "FlatFace"
sketch17.AttachmentOffset = App.Placement(App.Vector(0, 0, -32), App.Rotation())
add_polygon(sketch17, [(-5.5, -6), (-5.5, 0), (5.5, 0), (5.5, -6)])
sketch17.addConstraint(Sketcher.Constraint("Vertical", 0))
sketch17.addConstraint(Sketcher.Constraint("Horizontal", 1))
sketch17.addConstraint(Sketcher.Constraint("Vertical", 2))
sketch17.addConstraint(Sketcher.Constraint("Horizontal", 3))
sketch17.addConstraint(Sketcher.Constraint("Symmetric", 0, 2, 1, 2, -1, 1))
sketch17.addConstraint(Sketcher.Constraint("DistanceX", 1, 1, 1, 2, Q("11 mm")))
sketch17.addConstraint(Sketcher.Constraint("DistanceY", 0, 1, 0, 2, Q("6 mm")))
sketch17.setExpression("Constraints[9]", "Params.sketch17_width")
sketch17.setExpression("Constraints[10]", "Params.sketch17_height")
pad8 = doc.addObject("PartDesign::Pad", "Pad007")
body.addObject(pad8)
pad8.Profile = sketch17
pad8.setExpression("Length", "Params.pad8_length")
pad8.Reversed = True

sketch18 = doc.addObject("Sketcher::SketchObject", "Sketch017")
body.addObject(sketch18)
sketch18.AttachmentSupport = (doc.YZ_Plane, [""])
sketch18.MapMode = "FlatFace"
sketch18.AttachmentOffset = App.Placement(App.Vector(0, 0, 5.5), App.Rotation())
add_polygon(sketch18, [(-4, -80), (-2, -80), (-2, -69), (-4, -69)])
add_polygon(sketch18, [(-4, -51), (-2, -51), (-2, -40), (-4, -40)])
sketch18.addConstraint(Sketcher.Constraint("Horizontal", 0))
sketch18.addConstraint(Sketcher.Constraint("Vertical", 1))
sketch18.addConstraint(Sketcher.Constraint("Horizontal", 2))
sketch18.addConstraint(Sketcher.Constraint("Vertical", 3))
sketch18.addConstraint(Sketcher.Constraint("Horizontal", 4))
sketch18.addConstraint(Sketcher.Constraint("Vertical", 5))
sketch18.addConstraint(Sketcher.Constraint("Horizontal", 6))
sketch18.addConstraint(Sketcher.Constraint("Vertical", 7))
sketch18.addConstraint(Sketcher.Constraint("Vertical", 1, 2, 4, 2))
sketch18.addConstraint(Sketcher.Constraint("Vertical", 3, 2, 6, 2))
sketch18.addConstraint(Sketcher.Constraint("Equal", 3, 5))
sketch18.addConstraint(Sketcher.Constraint("DistanceX", 0, 1, 0, 2, Q("2 mm")))
sketch18.addConstraint(Sketcher.Constraint("DistanceY", 1, 1, 1, 2, Q("11 mm")))
sketch18.addConstraint(Sketcher.Constraint("DistanceX", 0, 2, -1, 1, Q("2 mm")))
sketch18.addConstraint(Sketcher.Constraint("DistanceY", 0, 2, -1, 1, Q("80 mm")))
sketch18.addConstraint(Sketcher.Constraint("DistanceY", 4, 2, -1, 1, Q("51 mm")))
sketch18.setExpression("Constraints[19]", "Params.sketch18_width")
sketch18.setExpression("Constraints[20]", "Params.sketch18_height")
pocket10 = doc.addObject("PartDesign::Pocket", "Pocket009")
body.addObject(pocket10)
pocket10.Profile = sketch18
pocket10.setExpression("Length", "Params.pocket10_length")

sketch19 = doc.addObject("Sketcher::SketchObject", "Sketch018")
body.addObject(sketch19)
sketch19.AttachmentSupport = (doc.XZ_Plane, [""])
sketch19.MapMode = "FlatFace"
sketch19.AttachmentOffset = App.Placement(App.Vector(0, 0, 9), App.Rotation())
sketch19.addGeometry(Part.Circle(App.Vector(29, -12.3, 0), App.Vector(0, 0, 1), 1.55), False)
sketch19.addGeometry(Part.Circle(App.Vector(29, -20.3, 0), App.Vector(0, 0, 1), 1.55), False)
sketch19.addConstraint(Sketcher.Constraint("Equal", 0, 1))
sketch19.addConstraint(Sketcher.Constraint("Vertical", 0, 3, 1, 3))
sketch19.addConstraint(Sketcher.Constraint("Diameter", 0, Q("3.1 mm")))
sketch19.addConstraint(Sketcher.Constraint("DistanceX", -1, 1, 0, 3, Q("29 mm")))
sketch19.addConstraint(Sketcher.Constraint("DistanceY", 1, 3, 0, 3, Q("8 mm")))
sketch19.addConstraint(Sketcher.Constraint("DistanceY", 0, 3, -1, 1, Q("12.3 mm")))
sketch19.setExpression("Constraints[2]", "Params.sketch19_diameter")
pocket11 = doc.addObject("PartDesign::Pocket", "Pocket010")
body.addObject(pocket11)
pocket11.Profile = sketch19
pocket11.setExpression("Length", "Params.pocket11_length")

sketch20 = doc.addObject("Sketcher::SketchObject", "Sketch019")
body.addObject(sketch20)
sketch20.AttachmentSupport = (doc.XZ_Plane, [""])
sketch20.MapMode = "FlatFace"
sketch20.AttachmentOffset = App.Placement(App.Vector(0, 0, 9), App.Rotation())
sketch20.addGeometry(Part.Circle(App.Vector(1.4, -17.5, 0), App.Vector(0, 0, 1), 3.25), False)
sketch20.addConstraint(Sketcher.Constraint("Diameter", 0, Q("6.5 mm")))
sketch20.addConstraint(Sketcher.Constraint("DistanceX", -1, 1, 0, 3, Q("1.4 mm")))
sketch20.addConstraint(Sketcher.Constraint("DistanceY", 0, 3, -1, 1, Q("17.5 mm")))
sketch20.setExpression("Constraints[0]", "Params.sketch20_diameter")
pocket12 = doc.addObject("PartDesign::Pocket", "Pocket011")
body.addObject(pocket12)
pocket12.Profile = sketch20
pocket12.setExpression("Length", "Params.pocket12_length")

doc.recompute()
